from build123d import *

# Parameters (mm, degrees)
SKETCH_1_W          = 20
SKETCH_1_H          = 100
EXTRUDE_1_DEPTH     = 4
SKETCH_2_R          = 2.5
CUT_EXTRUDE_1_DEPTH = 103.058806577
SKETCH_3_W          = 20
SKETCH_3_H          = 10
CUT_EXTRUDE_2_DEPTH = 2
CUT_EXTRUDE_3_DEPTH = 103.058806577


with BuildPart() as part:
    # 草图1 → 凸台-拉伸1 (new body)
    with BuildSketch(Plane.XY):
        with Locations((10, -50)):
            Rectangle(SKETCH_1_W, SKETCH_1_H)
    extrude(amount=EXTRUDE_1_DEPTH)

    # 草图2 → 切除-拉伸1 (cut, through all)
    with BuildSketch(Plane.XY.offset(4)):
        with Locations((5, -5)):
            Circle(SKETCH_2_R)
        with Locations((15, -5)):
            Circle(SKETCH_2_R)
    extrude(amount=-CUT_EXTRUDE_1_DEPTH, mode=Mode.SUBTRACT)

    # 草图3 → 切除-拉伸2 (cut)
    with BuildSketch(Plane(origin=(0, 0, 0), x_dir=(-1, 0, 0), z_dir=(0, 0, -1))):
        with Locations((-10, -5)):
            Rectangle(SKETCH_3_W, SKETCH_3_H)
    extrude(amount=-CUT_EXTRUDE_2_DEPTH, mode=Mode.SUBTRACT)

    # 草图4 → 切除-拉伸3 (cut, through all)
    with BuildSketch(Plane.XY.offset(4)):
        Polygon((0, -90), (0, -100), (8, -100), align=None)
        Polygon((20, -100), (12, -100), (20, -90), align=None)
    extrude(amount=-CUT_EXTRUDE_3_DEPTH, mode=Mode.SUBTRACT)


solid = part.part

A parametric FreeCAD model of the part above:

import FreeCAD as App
import Part
import Sketcher
from FreeCAD import Vector


def add_polygon(sketch, points):
    """Adds a closed chain of lines whose ends are joined by coincident constraints."""
    first, n = sketch.GeometryCount, len(points)
    for a, b in zip(points, points[1:] + points[:1]):
        sketch.addGeometry(Part.LineSegment(App.Vector(*a, 0), App.Vector(*b, 0)), False)
    for i in range(n):
        sketch.addConstraint(Sketcher.Constraint("Coincident", first + i, 2, first + (i + 1) % n, 1))

doc = App.newDocument("Part")
body = doc.addObject("PartDesign::Body", "Body")

sketch1 = body.newObject("Sketcher::SketchObject", "Sketch")
sketch1.AttachmentSupport = (doc.getObject("XY_Plane"), [""])
sketch1.MapMode = "FlatFace"
add_polygon(sketch1, [(0, 0), (0, -100), (20, -100), (20, 0)])
sketch1.addConstraint([
    Sketcher.Constraint("Vertical", 0),
    Sketcher.Constraint("Horizontal", 1),
    Sketcher.Constraint("Vertical", 2),
    Sketcher.Constraint("Horizontal", 3),
    Sketcher.Constraint("Coincident", 3, 2, -1, 1),
    Sketcher.Constraint("DistanceX", 1, 1, 1, 2, 20.0),
    Sketcher.Constraint("DistanceY", 0, 2, 0, 1, 100.0),
])
pad1 = body.newObject("PartDesign::Pad", "Pad")
pad1.Profile = sketch1
pad1.Length = 4

sketch2 = body.newObject("Sketcher::SketchObject", "Sketch001")
sketch2.AttachmentSupport = (doc.getObject("XY_Plane"), [""])
sketch2.MapMode = "FlatFace"
sketch2.AttachmentOffset = App.Placement(Vector(0, 0, 4), App.Rotation())
sketch2.addGeometry([
    Part.Circle(Vector(5, -5, 0), Vector(0, 0, 1), 2.5),
    Part.Circle(Vector(15, -5, 0), Vector(0, 0, 1), 2.5),
], False)
sketch2.addConstraint([
    Sketcher.Constraint("Equal", 0, 1),
    Sketcher.Constraint("Horizontal", 0, 3, 1, 3),
    Sketcher.Constraint("Diameter", 0, 5.0),
    Sketcher.Constraint("DistanceX", -1, 1, 0, 3, 5.0),
    Sketcher.Constraint("DistanceY", 0, 3, -1, 1, 5.0),
    Sketcher.Constraint("DistanceX", -1, 1, 1, 3, 15.0),
])
pocket1 = body.newObject("PartDesign::Pocket", "Pocket")
pocket1.Profile = sketch2
pocket1.Type = "ThroughAll"

sketch3 = body.newObject("Sketcher::SketchObject", "Sketch002")
sketch3.AttachmentSupport = (doc.getObject("XY_Plane"), [""])
sketch3.MapMode = "FlatFace"
add_polygon(sketch3, [(20, 0), (20, -10), (0, -10), (0, 0)])
sketch3.addConstraint([
    Sketcher.Constraint("Vertical", 0),
    Sketcher.Constraint("Horizontal", 1),
    Sketcher.Constraint("Vertical", 2),
    Sketcher.Constraint("Horizontal", 3),
    Sketcher.Constraint("Coincident", 2, 2, -1, 1),
    Sketcher.Constraint("DistanceX", 1, 2, 1, 1, 20.0),
    Sketcher.Constraint("DistanceY", 0, 2, 0, 1, 10.0),
])
pocket2 = body.newObject("PartDesign::Pocket", "Pocket001")
pocket2.Profile = sketch3
pocket2.Length = 2
pocket2.Reversed = True

sketch4 = body.newObject("Sketcher::SketchObject", "Sketch003")
sketch4.AttachmentSupport = (doc.getObject("XY_Plane"), [""])
sketch4.MapMode = "FlatFace"
sketch4.AttachmentOffset = App.Placement(Vector(0, 0, 4), App.Rotation())
add_polygon(sketch4, [(0, -90), (0, -100), (8, -100)])
add_polygon(sketch4, [(12, -100), (20, -100), (20, -90)])
sketch4.addConstraint([
    Sketcher.Constraint("Vertical", 0),
    Sketcher.Constraint("Horizontal", 1),
    Sketcher.Constraint("Horizontal", 3),
    Sketcher.Constraint("Vertical", 4),
    Sketcher.Constraint("PointOnObject", 0, 2, -2),
    Sketcher.Constraint("Horizontal", 1, 2, 3, 2),
    Sketcher.Constraint("Horizontal", 2, 2, 4, 2),
    Sketcher.Constraint("Equal", 1, 3),
    Sketcher.Constraint("DistanceX", 1, 1, 1, 2, 8.0),
    Sketcher.Constraint("DistanceY", 0, 2, 0, 1, 10.0),
    Sketcher.Constraint("DistanceY", 0, 2, -1, 1, 100.0),
    Sketcher.Constraint("DistanceX", -1, 1, 3, 2, 20.0),
])
pocket3 = body.newObject("PartDesign::Pocket", "Pocket002")
pocket3.Profile = sketch4
pocket3.Type = "ThroughAll"

doc.recompute()
